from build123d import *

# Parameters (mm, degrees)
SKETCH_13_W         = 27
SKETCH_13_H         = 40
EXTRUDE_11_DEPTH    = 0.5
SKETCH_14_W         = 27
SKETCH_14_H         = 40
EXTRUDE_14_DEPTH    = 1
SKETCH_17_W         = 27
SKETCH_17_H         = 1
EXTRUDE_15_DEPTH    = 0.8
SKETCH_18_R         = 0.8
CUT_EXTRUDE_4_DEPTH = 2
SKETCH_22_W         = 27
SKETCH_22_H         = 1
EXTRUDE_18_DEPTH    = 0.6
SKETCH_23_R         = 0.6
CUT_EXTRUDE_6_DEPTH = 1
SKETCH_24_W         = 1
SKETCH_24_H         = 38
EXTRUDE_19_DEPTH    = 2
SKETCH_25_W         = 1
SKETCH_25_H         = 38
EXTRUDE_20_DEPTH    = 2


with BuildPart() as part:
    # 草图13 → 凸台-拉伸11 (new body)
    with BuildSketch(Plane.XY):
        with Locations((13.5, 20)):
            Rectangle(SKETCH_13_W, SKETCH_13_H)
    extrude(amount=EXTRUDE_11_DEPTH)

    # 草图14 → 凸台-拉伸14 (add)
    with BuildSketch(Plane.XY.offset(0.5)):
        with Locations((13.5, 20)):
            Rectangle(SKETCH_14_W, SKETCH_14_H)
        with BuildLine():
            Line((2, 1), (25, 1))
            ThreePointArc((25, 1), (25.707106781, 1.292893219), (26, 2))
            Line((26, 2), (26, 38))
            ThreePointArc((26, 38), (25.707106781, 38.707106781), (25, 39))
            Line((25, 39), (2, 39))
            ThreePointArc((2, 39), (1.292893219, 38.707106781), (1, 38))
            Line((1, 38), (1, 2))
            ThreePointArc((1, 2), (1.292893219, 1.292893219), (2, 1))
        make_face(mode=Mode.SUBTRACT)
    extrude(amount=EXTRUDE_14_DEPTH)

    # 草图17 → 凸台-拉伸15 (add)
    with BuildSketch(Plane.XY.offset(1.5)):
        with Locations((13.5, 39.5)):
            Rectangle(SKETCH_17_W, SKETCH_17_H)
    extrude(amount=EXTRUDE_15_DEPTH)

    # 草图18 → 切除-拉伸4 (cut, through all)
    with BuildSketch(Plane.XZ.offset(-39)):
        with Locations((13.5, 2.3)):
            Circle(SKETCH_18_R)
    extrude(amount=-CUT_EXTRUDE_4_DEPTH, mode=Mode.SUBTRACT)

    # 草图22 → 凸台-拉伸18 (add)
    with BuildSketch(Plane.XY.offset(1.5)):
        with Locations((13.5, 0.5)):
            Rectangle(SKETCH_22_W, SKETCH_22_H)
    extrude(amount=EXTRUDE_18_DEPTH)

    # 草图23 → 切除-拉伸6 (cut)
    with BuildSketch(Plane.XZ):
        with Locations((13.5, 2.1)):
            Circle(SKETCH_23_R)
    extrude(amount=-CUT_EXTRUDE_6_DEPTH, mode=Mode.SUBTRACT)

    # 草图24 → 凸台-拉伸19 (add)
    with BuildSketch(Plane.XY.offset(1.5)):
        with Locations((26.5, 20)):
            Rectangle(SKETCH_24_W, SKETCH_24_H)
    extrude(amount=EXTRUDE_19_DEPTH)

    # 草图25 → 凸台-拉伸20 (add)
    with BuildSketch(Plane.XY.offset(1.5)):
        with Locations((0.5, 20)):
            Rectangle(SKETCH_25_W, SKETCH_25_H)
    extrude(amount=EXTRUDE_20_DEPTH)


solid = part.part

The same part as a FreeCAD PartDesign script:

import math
import FreeCAD as App
import Part
import Sketcher
from FreeCAD import Vector
Q = App.Units.Quantity


def add_polygon(sketch, points):
    """Adds a closed chain of lines whose ends are joined by coincident constraints."""
    first, n = sketch.GeometryCount, len(points)
    for a, b in zip(points, points[1:] + points[:1]):
        sketch.addGeometry(Part.LineSegment(App.Vector(*a, 0), App.Vector(*b, 0)), False)
    for i in range(n):
        sketch.addConstraint(Sketcher.Constraint("Coincident", first + i, 2, first + (i + 1) % n, 1))

doc = App.newDocument("Part")
body = doc.addObject("PartDesign::Body", "Body")

# Sketch on XY plane
sketch1 = body.newObject("Sketcher::SketchObject", "Sketch")
sketch1.AttachmentSupport = (doc.getObject("XY_Plane"), [""])
sketch1.MapMode = "FlatFace"
add_polygon(sketch1, [(0, 40), (0, 0), (27, 0), (27, 40)])  # lines 0-3
sketch1.addConstraint([
    Sketcher.Constraint("Vertical", 0),
    Sketcher.Constraint("Horizontal", 1),
    Sketcher.Constraint("Vertical", 2),
    Sketcher.Constraint("Horizontal", 3),
    Sketcher.Constraint("Coincident", 0, 2, -1, 1),
    Sketcher.Constraint("DistanceX", 1, 1, 1, 2, Q("27 mm")),
    Sketcher.Constraint("DistanceY", 0, 2, 0, 1, Q("40 mm")),
])
pad1 = body.newObject("PartDesign::Pad", "Pad")
pad1.Profile = sketch1
pad1.Length = 0.5

# Sketch on XY plane
sketch2 = body.newObject("Sketcher::SketchObject", "Sketch001")
sketch2.AttachmentSupport = (doc.getObject("XY_Plane"), [""])
sketch2.MapMode = "FlatFace"
sketch2.AttachmentOffset = App.Placement(Vector(0, 0, 0.5), App.Rotation())
add_polygon(sketch2, [(0, 40), (0, 0), (27, 0), (27, 40)])  # lines 0-3
sketch2.addGeometry(Part.LineSegment(Vector(25, 1, 0), Vector(2, 1, 0)), False)  # 4
sketch2.addGeometry(Part.ArcOfCircle(Part.Circle(Vector(2, 2, 0), Vector(0, 0, 1), 1), math.radians(-180), math.radians(-90)), False)  # 5
sketch2.addGeometry(Part.LineSegment(Vector(1, 2, 0), Vector(1, 38, 0)), False)  # 6
sketch2.addGeometry(Part.ArcOfCircle(Part.Circle(Vector(2, 38, 0), Vector(0, 0, 1), 1), math.radians(90), math.radians(180)), False)  # 7
sketch2.addGeometry(Part.LineSegment(Vector(2, 39, 0), Vector(25, 39, 0)), False)  # 8
sketch2.addGeometry(Part.ArcOfCircle(Part.Circle(Vector(25, 38, 0), Vector(0, 0, 1), 1), math.radians(0), math.radians(90)), False)  # 9
sketch2.addGeometry(Part.LineSegment(Vector(26, 38, 0), Vector(26, 2, 0)), False)  # 10
sketch2.addGeometry(Part.ArcOfCircle(Part.Circle(Vector(25, 2, 0), Vector(0, 0, 1), 1), math.radians(-90), math.radians(0)), False)  # 11
sketch2.addConstraint([
    Sketcher.Constraint("Tangent", 4, 2, 5, 2),
    Sketcher.Constraint("Tangent", 5, 1, 6, 1),
    Sketcher.Constraint("Tangent", 6, 2, 7, 2),
    Sketcher.Constraint("Tangent", 7, 1, 8, 1),
    Sketcher.Constraint("Tangent", 8, 2, 9, 2),
    Sketcher.Constraint("Tangent", 9, 1, 10, 1),
    Sketcher.Constraint("Tangent", 10, 2, 11, 2),
    Sketcher.Constraint("Tangent", 11, 1, 4, 1),
    Sketcher.Constraint("Vertical", 0),
    Sketcher.Constraint("Horizontal", 1),
    Sketcher.Constraint("Vertical", 2),
    Sketcher.Constraint("Horizontal", 3),
    Sketcher.Constraint("Horizontal", 4),
    Sketcher.Constraint("Vertical", 6),
    Sketcher.Constraint("Horizontal", 8),
    Sketcher.Constraint("Vertical", 10),
    Sketcher.Constraint("Coincident", 0, 2, -1, 1),
    Sketcher.Constraint("Equal", 5, 7),
    Sketcher.Constraint("Equal", 7, 9),
    Sketcher.Constraint("Equal", 9, 11),
    Sketcher.Constraint("Radius", 5, Q("1 mm")),
    Sketcher.Constraint("DistanceX", 1, 1, 1, 2, Q("27 mm")),
    Sketcher.Constraint("DistanceX", 4, 2, 4, 1, Q("23 mm")),
    Sketcher.Constraint("DistanceY", 0, 2, 0, 1, Q("40 mm")),
    Sketcher.Constraint("DistanceY", 6, 1, 6, 2, Q("36 mm")),
    Sketcher.Constraint("DistanceX", -1, 1, 5, 3, Q("2 mm")),
    Sketcher.Constraint("DistanceY", -1, 1, 5, 3, Q("2 mm")),
])
pad2 = body.newObject("PartDesign::Pad", "Pad001")
pad2.Profile = sketch2
pad2.Length = 1

# Sketch on XY plane
sketch3 = body.newObject("Sketcher::SketchObject", "Sketch002")
sketch3.AttachmentSupport = (doc.getObject("XY_Plane"), [""])
sketch3.MapMode = "FlatFace"
sketch3.AttachmentOffset = App.Placement(Vector(0, 0, 1.5), App.Rotation())
add_polygon(sketch3, [(0, 40), (0, 39), (27, 39), (27, 40)])  # lines 0-3
sketch3.addConstraint([
    Sketcher.Constraint("Vertical", 0),
    Sketcher.Constraint("Horizontal", 1),
    Sketcher.Constraint("Vertical", 2),
    Sketcher.Constraint("Horizontal", 3),
    Sketcher.Constraint("PointOnObject", 0, 2, -2),
    Sketcher.Constraint("DistanceX", 1, 1, 1, 2, Q("27 mm")),
    Sketcher.Constraint("DistanceY", 0, 2, 0, 1, Q("1 mm")),
    Sketcher.Constraint("DistanceY", -1, 1, 0, 2, Q("39 mm")),
])
pad3 = body.newObject("PartDesign::Pad", "Pad002")
pad3.Profile = sketch3
pad3.Length = 0.8

# Sketch on XZ plane
sketch4 = body.newObject("Sketcher::SketchObject", "Sketch003")
sketch4.AttachmentSupport = (doc.getObject("XZ_Plane"), [""])
sketch4.MapMode = "FlatFace"
sketch4.AttachmentOffset = App.Placement(Vector(0, 0, -39), App.Rotation())
sketch4.addGeometry(Part.Circle(Vector(13.5, 2.3, 0), Vector(0, 0, 1), 0.8), False)
sketch4.addConstraint([
    Sketcher.Constraint("Diameter", 0, Q("1.6 mm")),
    Sketcher.Constraint("DistanceX", -1, 1, 0, 3, Q("13.5 mm")),
    Sketcher.Constraint("DistanceY", -1, 1, 0, 3, Q("2.3 mm")),
])
pocket1 = body.newObject("PartDesign::Pocket", "Pocket")
pocket1.Profile = sketch4
pocket1.Type = "ThroughAll"

# Sketch on XY plane
sketch5 = body.newObject("Sketcher::SketchObject", "Sketch004")
sketch5.AttachmentSupport = (doc.getObject("XY_Plane"), [""])
sketch5.MapMode = "FlatFace"
sketch5.AttachmentOffset = App.Placement(Vector(0, 0, 1.5), App.Rotation())
add_polygon(sketch5, [(0, 1), (0, 0), (27, 0), (27, 1)])  # lines 0-3
sketch5.addConstraint([
    Sketcher.Constraint("Vertical", 0),
    Sketcher.Constraint("Horizontal", 1),
    Sketcher.Constraint("Vertical", 2),
    Sketcher.Constraint("Horizontal", 3),
    Sketcher.Constraint("Coincident", 0, 2, -1, 1),
    Sketcher.Constraint("DistanceX", 1, 1, 1, 2, Q("27 mm")),
    Sketcher.Constraint("DistanceY", 0, 2, 0, 1, Q("1 mm")),
])
pad4 = body.newObject("PartDesign::Pad", "Pad003")
pad4.Profile = sketch5
pad4.Length = 0.6

# Sketch on XZ plane
sketch6 = body.newObject("Sketcher::SketchObject", "Sketch005")
sketch6.AttachmentSupport = (doc.getObject("XZ_Plane"), [""])
sketch6.MapMode = "FlatFace"
sketch6.addGeometry(Part.Circle(Vector(13.5, 2.1, 0), Vector(0, 0, 1), 0.6), False)
sketch6.addConstraint([
    Sketcher.Constraint("Diameter", 0, Q("1.2 mm")),
    Sketcher.Constraint("DistanceX", -1, 1, 0, 3, Q("13.5 mm")),
    Sketcher.Constraint("DistanceY", -1, 1, 0, 3, Q("2.1 mm")),
])
pocket2 = body.newObject("PartDesign::Pocket", "Pocket001")
pocket2.Profile = sketch6
pocket2.Length = 1

# Sketch on XY plane
sketch7 = body.newObject("Sketcher::SketchObject", "Sketch006")
sketch7.AttachmentSupport = (doc.getObject("XY_Plane"), [""])
sketch7.MapMode = "FlatFace"
sketch7.AttachmentOffset = App.Placement(Vector(0, 0, 1.5), App.Rotation())
add_polygon(sketch7, [(26, 39), (26, 1), (27, 1), (27, 39)])  # lines 0-3
sketch7.addConstraint([
    Sketcher.Constraint("Vertical", 0),
    Sketcher.Constraint("Horizontal", 1),
    Sketcher.Constraint("Vertical", 2),
    Sketcher.Constraint("Horizontal", 3),
    Sketcher.Constraint("DistanceX", 1, 1, 1, 2, Q("1 mm")),
    Sketcher.Constraint("DistanceY", 0, 2, 0, 1, Q("38 mm")),
    Sketcher.Constraint("DistanceX", -1, 1, 0, 2, Q("26 mm")),
    Sketcher.Constraint("DistanceY", -1, 1, 0, 2, Q("1 mm")),
])
pad5 = body.newObject("PartDesign::Pad", "Pad004")
pad5.Profile = sketch7
pad5.Length = 2

# Sketch on XY plane
sketch8 = body.newObject("Sketcher::SketchObject", "Sketch007")
sketch8.AttachmentSupport = (doc.getObject("XY_Plane"), [""])
sketch8.MapMode = "FlatFace"
sketch8.AttachmentOffset = App.Placement(Vector(0, 0, 1.5), App.Rotation())
add_polygon(sketch8, [(0, 39), (0, 1), (1, 1), (1, 39)])  # lines 0-3
sketch8.addConstraint([
    Sketcher.Constraint("Vertical", 0),
    Sketcher.Constraint("Horizontal", 1),
    Sketcher.Constraint("Vertical", 2),
    Sketcher.Constraint("Horizontal", 3),
    Sketcher.Constraint("PointOnObject", 0, 2, -2),
    Sketcher.Constraint("DistanceX", 1, 1, 1, 2, Q("1 mm")),
    Sketcher.Constraint("DistanceY", 0, 2, 0, 1, Q("38 mm")),
    Sketcher.Constraint("DistanceY", -1, 1, 0, 2, Q("1 mm")),
])
pad6 = body.newObject("PartDesign::Pad", "Pad005")
pad6.Profile = sketch8
pad6.Length = 2

doc.recompute()
